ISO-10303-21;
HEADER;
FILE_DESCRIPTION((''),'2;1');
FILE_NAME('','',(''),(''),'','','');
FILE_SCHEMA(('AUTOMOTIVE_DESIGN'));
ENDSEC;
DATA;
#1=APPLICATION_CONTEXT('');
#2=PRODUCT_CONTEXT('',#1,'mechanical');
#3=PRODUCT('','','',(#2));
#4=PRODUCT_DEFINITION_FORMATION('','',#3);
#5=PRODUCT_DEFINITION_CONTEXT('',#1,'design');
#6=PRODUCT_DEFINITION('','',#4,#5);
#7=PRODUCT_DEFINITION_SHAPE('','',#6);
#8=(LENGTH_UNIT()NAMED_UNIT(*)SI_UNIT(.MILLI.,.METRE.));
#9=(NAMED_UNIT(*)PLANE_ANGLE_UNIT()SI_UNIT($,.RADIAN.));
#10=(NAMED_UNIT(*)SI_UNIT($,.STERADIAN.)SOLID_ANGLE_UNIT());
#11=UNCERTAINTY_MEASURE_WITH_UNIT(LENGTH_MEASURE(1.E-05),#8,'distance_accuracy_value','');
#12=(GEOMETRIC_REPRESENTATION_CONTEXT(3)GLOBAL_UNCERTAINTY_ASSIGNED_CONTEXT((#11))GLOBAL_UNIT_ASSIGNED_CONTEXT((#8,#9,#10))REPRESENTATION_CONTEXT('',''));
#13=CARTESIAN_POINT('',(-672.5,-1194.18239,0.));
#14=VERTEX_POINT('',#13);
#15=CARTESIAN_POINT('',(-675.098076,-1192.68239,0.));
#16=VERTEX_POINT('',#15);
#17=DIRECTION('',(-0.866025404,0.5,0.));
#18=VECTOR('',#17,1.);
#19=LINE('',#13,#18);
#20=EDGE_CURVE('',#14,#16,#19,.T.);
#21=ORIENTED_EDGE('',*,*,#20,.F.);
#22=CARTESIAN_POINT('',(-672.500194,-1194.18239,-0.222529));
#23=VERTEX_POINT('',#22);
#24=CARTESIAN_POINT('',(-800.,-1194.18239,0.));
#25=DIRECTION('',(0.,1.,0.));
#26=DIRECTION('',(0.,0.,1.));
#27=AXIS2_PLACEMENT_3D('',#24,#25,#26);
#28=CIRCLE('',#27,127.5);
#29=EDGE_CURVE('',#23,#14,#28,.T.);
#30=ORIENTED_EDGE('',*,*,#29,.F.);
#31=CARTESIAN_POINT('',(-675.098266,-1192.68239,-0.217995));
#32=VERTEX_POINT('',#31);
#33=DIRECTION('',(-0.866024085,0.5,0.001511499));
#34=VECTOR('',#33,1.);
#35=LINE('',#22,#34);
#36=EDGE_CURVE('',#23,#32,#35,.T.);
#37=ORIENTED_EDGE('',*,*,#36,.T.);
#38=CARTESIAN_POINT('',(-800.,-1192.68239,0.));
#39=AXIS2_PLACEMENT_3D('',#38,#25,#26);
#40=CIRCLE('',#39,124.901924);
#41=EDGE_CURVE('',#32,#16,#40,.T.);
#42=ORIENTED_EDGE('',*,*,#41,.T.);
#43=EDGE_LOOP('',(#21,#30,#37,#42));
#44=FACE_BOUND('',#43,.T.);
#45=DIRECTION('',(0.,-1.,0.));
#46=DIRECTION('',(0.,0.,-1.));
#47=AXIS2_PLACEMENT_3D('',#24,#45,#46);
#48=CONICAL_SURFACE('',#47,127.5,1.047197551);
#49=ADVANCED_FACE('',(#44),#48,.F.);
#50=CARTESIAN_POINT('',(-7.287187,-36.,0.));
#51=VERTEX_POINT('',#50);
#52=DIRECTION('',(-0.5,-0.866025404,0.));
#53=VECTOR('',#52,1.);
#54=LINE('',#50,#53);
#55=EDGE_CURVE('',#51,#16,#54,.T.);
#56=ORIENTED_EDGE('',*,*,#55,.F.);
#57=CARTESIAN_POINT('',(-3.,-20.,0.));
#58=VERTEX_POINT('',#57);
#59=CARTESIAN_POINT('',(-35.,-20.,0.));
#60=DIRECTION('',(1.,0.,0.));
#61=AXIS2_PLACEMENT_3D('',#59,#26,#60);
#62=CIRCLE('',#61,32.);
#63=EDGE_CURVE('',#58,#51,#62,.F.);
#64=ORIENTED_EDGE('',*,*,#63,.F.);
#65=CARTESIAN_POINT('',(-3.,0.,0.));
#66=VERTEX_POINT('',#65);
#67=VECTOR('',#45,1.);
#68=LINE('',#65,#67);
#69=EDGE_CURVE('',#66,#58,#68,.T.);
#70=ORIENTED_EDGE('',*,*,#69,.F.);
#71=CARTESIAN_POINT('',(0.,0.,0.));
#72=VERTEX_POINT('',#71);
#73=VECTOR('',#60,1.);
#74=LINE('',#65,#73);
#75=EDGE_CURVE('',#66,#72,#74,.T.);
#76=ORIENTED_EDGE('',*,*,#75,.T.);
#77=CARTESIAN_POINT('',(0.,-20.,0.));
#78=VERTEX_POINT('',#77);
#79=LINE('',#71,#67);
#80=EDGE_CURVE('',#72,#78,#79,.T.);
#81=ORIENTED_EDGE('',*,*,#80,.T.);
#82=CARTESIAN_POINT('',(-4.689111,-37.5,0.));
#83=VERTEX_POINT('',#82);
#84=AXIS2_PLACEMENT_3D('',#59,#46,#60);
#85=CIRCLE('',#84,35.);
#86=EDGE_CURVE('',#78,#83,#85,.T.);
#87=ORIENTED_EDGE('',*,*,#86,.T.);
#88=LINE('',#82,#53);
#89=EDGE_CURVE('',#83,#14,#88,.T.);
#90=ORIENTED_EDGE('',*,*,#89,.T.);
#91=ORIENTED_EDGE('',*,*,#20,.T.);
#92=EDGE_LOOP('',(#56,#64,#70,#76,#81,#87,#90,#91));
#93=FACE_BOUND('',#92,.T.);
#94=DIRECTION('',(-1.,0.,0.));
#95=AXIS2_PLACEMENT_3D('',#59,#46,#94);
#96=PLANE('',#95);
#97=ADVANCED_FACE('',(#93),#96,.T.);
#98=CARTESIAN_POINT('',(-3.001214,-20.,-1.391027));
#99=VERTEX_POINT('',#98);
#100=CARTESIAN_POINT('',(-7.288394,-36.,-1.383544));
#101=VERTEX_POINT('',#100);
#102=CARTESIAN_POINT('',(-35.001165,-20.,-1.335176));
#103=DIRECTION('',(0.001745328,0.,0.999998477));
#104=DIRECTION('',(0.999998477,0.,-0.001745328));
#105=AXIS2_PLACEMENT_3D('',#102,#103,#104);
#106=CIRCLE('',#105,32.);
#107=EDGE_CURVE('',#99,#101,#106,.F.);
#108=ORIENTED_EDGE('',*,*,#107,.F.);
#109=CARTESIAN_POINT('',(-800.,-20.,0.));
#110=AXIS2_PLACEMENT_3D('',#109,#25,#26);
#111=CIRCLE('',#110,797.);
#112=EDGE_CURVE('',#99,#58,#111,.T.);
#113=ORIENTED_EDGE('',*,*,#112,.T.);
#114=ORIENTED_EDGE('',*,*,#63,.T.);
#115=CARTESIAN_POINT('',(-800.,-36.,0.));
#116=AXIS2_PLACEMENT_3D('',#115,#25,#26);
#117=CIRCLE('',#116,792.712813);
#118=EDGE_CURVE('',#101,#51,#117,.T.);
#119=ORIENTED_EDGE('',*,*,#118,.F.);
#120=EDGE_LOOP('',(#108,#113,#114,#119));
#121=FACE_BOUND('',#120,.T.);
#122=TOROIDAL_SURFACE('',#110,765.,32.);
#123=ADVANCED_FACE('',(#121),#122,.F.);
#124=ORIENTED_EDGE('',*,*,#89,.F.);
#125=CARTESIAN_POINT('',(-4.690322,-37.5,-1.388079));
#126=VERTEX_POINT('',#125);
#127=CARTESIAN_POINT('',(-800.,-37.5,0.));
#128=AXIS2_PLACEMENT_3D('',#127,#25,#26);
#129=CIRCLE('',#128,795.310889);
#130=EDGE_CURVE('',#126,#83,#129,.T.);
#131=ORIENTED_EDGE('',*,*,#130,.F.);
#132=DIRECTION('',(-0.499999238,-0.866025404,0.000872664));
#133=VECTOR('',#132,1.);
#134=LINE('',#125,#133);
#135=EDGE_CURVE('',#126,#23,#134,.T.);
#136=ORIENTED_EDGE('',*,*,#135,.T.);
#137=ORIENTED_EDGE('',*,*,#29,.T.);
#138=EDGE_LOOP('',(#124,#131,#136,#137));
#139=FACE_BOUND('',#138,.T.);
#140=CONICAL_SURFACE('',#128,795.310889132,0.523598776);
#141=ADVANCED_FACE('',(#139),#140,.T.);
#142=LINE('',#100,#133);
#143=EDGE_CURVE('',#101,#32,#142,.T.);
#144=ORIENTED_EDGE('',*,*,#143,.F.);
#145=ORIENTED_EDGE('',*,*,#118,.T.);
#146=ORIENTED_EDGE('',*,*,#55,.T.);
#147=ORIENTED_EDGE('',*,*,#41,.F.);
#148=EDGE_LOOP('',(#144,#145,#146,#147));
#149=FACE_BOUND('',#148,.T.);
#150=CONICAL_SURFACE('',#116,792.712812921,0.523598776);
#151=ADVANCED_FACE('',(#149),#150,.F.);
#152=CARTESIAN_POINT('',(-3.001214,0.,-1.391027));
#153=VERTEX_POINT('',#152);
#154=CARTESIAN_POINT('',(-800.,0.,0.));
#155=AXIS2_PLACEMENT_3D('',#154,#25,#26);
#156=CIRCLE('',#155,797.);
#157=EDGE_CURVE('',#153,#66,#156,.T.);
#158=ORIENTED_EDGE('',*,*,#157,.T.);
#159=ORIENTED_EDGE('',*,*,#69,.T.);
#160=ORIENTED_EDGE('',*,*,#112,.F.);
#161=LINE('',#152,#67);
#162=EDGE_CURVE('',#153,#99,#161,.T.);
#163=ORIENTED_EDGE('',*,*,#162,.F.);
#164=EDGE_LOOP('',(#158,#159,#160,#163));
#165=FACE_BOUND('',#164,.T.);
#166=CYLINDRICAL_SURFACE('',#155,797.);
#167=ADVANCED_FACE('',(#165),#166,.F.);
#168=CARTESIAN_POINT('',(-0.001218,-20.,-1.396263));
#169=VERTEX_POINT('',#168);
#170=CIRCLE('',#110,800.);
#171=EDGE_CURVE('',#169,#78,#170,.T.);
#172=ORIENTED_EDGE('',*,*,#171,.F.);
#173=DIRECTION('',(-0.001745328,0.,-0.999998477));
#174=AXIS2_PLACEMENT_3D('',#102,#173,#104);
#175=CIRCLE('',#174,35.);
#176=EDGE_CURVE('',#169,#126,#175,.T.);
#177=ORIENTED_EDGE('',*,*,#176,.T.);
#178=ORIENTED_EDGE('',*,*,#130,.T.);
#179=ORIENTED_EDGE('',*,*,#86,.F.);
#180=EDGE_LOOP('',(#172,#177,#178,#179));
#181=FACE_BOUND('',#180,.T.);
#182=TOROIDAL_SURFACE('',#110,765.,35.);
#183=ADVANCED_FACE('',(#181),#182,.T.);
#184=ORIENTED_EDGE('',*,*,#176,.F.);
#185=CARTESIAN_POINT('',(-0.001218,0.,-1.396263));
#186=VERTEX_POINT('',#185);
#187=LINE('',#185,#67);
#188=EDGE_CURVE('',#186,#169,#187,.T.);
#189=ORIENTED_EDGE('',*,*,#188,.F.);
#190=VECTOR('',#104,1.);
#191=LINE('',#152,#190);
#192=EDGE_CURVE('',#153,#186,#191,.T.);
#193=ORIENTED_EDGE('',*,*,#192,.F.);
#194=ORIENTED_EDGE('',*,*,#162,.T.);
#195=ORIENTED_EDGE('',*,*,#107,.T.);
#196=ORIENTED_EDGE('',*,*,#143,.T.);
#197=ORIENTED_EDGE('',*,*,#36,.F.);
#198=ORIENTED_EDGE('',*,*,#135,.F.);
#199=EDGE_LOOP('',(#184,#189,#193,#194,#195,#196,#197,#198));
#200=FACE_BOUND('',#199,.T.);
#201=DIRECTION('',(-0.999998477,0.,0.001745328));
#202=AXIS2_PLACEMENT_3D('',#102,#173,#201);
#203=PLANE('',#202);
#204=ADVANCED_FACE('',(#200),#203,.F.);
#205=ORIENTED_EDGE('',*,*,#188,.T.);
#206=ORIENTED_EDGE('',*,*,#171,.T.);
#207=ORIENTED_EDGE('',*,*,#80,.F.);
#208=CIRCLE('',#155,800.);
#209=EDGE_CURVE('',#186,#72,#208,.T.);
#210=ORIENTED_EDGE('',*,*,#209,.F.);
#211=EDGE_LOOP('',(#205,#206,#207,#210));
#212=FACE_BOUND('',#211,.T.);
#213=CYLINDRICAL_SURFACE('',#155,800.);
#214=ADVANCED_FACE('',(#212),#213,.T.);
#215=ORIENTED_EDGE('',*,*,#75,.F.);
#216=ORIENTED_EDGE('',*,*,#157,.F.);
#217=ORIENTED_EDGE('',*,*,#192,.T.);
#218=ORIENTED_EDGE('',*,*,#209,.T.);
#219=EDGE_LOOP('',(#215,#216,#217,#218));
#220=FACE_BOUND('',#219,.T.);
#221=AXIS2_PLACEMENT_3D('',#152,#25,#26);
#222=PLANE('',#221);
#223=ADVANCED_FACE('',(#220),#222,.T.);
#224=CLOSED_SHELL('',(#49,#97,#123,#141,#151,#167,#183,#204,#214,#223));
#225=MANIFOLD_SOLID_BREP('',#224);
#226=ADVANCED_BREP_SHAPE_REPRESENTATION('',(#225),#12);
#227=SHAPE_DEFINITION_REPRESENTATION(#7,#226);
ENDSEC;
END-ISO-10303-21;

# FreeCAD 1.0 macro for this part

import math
import FreeCAD as App
import Part
import Sketcher

V = App.Vector
Q = App.Units.Quantity

doc = App.newDocument("Part")
body = doc.addObject("PartDesign::Body", "Body")

sketch1 = body.newObject("Sketcher::SketchObject", "Sketch")
sketch1.AttachmentSupport = (doc.getObject("XY_Plane"), [""])
sketch1.MapMode = "FlatFace"
sketch1.addGeometry([
    Part.LineSegment(V(0, -20, 0), V(0, 0, 0)),
    Part.LineSegment(V(0, 0, 0), V(-3, 0, 0)),
    Part.LineSegment(V(-3, 0, 0), V(-3, -20, 0)),
    Part.ArcOfCircle(Part.Circle(V(-35, -20, 0), V(0, 0, 1), 32), math.radians(-30), math.radians(0)),
    Part.LineSegment(V(-7.3, -36, 0), V(-675.1, -1192.7, 0)),
    Part.LineSegment(V(-675.1, -1192.7, 0), V(-672.5, -1194.2, 0)),
    Part.LineSegment(V(-672.5, -1194.2, 0), V(-4.7, -37.5, 0)),
    Part.ArcOfCircle(Part.Circle(V(-35, -20, 0), V(0, 0, 1), 35), math.radians(-30), math.radians(0)),
], False)
sketch1.addGeometry(Part.LineSegment(V(-800, 0, 0), V(-800, -1194.2, 0)), True)
sketch1.addConstraint([
    Sketcher.Constraint("Coincident", 0, 2, 1, 1),
    Sketcher.Constraint("Coincident", 1, 2, 2, 1),
    Sketcher.Constraint("Tangent", 2, 2, 3, 2),
    Sketcher.Constraint("Tangent", 3, 1, 4, 1),
    Sketcher.Constraint("Coincident", 4, 2, 5, 1),
    Sketcher.Constraint("Coincident", 5, 2, 6, 1),
    Sketcher.Constraint("Tangent", 6, 2, 7, 1),
    Sketcher.Constraint("Tangent", 7, 2, 0, 1),
    Sketcher.Constraint("Vertical", 0),
    Sketcher.Constraint("Horizontal", 1),
    Sketcher.Constraint("Vertical", 2),
    Sketcher.Constraint("Vertical", 8),
    Sketcher.Constraint("Coincident", 0, 2, -1, 1),
    Sketcher.Constraint("Coincident", 7, 3, 3, 3),
    Sketcher.Constraint("PointOnObject", 8, 1, -1),
    Sketcher.Constraint("Perpendicular", 4, 5),
    Sketcher.Constraint("Parallel", 4, 6),
    Sketcher.Constraint("Horizontal", 5, 2, 8, 2),
    Sketcher.Constraint("Radius", 3, 32.0),
    Sketcher.Constraint("Radius", 7, 35.0),
    Sketcher.Constraint("DistanceY", 0, 1, 0, 2, 20.0),
    Sketcher.Constraint("Angle", 4, Q("-120 deg")),
    Sketcher.Constraint("DistanceX", 8, 1, -1, 1, 800.0),
    Sketcher.Constraint("DistanceX", 5, 2, -1, 1, 672.5),
])
revolution = body.newObject("PartDesign::Revolution", "Revolution")
revolution.Profile = sketch1
revolution.ReferenceAxis = (sketch1, ["Axis0"])
revolution.Angle = 359.9

doc.recompute()
